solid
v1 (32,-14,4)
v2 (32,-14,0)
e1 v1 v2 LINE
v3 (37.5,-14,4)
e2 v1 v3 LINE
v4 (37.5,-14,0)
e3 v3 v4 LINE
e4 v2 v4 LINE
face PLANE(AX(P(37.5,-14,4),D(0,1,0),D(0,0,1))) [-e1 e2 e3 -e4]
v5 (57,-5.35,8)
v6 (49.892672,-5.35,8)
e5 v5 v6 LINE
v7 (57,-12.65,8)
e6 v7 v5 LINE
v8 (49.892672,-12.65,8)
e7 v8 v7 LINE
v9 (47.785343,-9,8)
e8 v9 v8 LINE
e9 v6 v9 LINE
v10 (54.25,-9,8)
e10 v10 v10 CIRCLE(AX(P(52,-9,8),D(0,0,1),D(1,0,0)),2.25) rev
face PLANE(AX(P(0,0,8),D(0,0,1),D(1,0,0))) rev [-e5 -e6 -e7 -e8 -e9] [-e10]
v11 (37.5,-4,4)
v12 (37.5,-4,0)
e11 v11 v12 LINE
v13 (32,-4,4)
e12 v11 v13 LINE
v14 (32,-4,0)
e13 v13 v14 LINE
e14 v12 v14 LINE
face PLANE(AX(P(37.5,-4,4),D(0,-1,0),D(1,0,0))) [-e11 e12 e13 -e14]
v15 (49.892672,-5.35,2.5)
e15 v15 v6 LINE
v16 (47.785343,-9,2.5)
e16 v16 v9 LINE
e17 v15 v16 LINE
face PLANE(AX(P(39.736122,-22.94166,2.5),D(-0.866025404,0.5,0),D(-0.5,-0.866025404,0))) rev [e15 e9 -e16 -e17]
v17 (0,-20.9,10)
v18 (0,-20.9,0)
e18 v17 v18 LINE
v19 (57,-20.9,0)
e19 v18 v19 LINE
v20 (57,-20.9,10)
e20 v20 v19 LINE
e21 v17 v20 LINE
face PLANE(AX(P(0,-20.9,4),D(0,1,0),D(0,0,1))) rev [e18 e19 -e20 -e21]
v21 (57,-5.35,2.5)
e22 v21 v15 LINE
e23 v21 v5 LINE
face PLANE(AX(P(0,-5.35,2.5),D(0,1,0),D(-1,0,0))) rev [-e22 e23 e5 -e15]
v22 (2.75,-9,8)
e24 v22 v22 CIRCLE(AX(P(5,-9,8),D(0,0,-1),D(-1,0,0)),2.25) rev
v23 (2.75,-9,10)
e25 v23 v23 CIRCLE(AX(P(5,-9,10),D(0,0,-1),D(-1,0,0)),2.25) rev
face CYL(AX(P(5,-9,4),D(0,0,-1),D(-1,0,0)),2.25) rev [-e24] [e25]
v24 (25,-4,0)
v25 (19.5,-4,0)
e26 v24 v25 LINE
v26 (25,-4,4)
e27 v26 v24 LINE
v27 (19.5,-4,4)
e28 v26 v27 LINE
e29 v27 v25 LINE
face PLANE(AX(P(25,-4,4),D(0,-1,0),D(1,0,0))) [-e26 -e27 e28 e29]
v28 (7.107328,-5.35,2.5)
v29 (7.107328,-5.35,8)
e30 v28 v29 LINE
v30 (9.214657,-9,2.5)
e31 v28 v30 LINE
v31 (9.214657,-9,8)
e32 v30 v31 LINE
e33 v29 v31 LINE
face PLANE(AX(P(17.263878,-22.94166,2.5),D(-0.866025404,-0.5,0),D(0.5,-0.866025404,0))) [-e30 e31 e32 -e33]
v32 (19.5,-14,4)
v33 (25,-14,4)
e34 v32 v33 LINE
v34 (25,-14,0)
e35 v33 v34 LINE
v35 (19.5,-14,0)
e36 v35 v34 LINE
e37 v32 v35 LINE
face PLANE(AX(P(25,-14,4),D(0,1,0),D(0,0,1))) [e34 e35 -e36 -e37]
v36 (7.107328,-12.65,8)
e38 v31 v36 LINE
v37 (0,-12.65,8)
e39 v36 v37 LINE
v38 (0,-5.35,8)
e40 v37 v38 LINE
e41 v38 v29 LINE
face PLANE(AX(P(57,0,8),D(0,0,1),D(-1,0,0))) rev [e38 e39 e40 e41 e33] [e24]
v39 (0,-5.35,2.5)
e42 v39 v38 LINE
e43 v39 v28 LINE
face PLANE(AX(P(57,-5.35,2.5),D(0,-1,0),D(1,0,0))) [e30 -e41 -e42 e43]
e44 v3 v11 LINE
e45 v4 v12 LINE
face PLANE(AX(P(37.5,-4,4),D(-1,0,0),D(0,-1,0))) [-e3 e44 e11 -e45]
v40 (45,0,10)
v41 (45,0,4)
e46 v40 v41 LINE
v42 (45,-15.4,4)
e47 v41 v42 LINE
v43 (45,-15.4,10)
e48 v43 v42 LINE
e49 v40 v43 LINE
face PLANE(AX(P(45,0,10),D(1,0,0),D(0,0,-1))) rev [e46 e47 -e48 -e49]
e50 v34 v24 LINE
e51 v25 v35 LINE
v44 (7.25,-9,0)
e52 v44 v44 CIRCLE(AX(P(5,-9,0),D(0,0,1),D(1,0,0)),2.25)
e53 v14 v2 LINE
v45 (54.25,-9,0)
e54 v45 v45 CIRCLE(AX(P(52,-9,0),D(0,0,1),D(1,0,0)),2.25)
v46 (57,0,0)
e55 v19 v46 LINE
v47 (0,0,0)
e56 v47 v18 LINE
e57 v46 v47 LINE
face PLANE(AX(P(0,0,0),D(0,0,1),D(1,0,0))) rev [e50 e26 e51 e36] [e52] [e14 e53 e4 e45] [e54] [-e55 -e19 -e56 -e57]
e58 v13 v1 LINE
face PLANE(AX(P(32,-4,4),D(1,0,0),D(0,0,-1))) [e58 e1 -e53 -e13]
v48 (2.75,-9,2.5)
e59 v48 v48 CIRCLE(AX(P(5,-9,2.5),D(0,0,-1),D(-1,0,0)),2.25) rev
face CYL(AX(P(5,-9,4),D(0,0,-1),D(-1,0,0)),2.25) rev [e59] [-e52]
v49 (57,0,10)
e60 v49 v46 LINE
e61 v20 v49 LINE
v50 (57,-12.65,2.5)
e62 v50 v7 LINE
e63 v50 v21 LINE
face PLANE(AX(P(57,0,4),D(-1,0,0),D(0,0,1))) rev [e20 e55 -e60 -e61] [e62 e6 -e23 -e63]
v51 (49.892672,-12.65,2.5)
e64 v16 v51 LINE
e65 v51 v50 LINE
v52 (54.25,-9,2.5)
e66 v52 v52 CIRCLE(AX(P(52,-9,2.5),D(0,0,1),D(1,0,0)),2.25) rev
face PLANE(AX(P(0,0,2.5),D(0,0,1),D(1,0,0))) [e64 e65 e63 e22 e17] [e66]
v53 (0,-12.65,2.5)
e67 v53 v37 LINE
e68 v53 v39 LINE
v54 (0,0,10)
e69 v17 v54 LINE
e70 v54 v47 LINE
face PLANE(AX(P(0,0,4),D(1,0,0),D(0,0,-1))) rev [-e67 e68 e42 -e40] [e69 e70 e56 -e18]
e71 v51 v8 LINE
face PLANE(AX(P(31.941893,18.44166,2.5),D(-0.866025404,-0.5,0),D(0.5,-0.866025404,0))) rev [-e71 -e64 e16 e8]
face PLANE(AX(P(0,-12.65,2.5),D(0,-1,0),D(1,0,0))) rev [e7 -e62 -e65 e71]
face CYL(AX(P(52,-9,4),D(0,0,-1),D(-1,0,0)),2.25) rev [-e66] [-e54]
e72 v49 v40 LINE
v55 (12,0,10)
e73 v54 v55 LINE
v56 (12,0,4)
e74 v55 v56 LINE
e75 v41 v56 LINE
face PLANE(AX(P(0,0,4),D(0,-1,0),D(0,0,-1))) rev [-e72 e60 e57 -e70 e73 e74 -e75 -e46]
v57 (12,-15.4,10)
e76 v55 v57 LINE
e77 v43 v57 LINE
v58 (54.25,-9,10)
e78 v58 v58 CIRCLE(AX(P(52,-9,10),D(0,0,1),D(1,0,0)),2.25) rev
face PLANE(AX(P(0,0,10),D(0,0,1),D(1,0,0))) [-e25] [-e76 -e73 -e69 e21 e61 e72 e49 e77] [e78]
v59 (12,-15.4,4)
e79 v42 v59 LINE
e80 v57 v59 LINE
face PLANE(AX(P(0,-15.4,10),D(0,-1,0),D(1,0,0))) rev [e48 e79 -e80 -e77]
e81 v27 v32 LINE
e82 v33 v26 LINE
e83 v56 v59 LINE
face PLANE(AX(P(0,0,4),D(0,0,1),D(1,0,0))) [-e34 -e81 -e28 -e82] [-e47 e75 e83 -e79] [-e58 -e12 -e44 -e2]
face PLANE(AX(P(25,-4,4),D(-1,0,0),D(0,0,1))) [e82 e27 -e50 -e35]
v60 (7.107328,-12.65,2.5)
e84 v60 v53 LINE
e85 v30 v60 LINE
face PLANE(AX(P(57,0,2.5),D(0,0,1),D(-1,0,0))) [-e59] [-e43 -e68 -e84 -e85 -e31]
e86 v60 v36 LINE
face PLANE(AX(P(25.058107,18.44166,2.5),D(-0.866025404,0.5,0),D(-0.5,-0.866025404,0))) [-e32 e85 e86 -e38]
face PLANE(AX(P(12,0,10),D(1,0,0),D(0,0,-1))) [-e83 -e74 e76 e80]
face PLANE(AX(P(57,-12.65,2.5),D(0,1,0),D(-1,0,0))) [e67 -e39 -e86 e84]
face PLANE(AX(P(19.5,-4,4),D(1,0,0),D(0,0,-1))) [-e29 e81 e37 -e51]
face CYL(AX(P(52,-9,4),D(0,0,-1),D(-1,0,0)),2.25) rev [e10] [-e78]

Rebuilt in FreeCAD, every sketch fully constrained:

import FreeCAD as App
import Part
import Sketcher
from FreeCAD import Vector
Q = App.Units.Quantity

doc = App.newDocument("Part")
body = doc.addObject("PartDesign::Body", "Body")

sketch1 = body.newObject("Sketcher::SketchObject", "Sketch")
sketch1.AttachmentSupport = (doc.getObject("XY_Plane"), [""])
sketch1.MapMode = "FlatFace"
sketch1.addGeometry([
    Part.LineSegment(Vector(0, 0, 0), Vector(0, -20.9, 0)),
    Part.LineSegment(Vector(0, -20.9, 0), Vector(57, -20.9, 0)),
    Part.LineSegment(Vector(57, -20.9, 0), Vector(57, 0, 0)),
    Part.LineSegment(Vector(57, 0, 0), Vector(0, 0, 0)),
    Part.Circle(Vector(5, -9, 0), Vector(0, 0, 1), 2.2),
    Part.LineSegment(Vector(25, -14, 0), Vector(19.5, -14, 0)),
    Part.LineSegment(Vector(19.5, -14, 0), Vector(19.5, -4, 0)),
    Part.LineSegment(Vector(19.5, -4, 0), Vector(25, -4, 0)),
    Part.LineSegment(Vector(25, -4, 0), Vector(25, -14, 0)),
    Part.LineSegment(Vector(37.5, -14, 0), Vector(32, -14, 0)),
    Part.LineSegment(Vector(32, -14, 0), Vector(32, -4, 0)),
    Part.LineSegment(Vector(32, -4, 0), Vector(37.5, -4, 0)),
    Part.LineSegment(Vector(37.5, -4, 0), Vector(37.5, -14, 0)),
    Part.Circle(Vector(52, -9, 0), Vector(0, 0, 1), 2.2),
], False)
sketch1.addConstraint([
    Sketcher.Constraint("Coincident", 0, 2, 1, 1),
    Sketcher.Constraint("Coincident", 1, 2, 2, 1),
    Sketcher.Constraint("Coincident", 2, 2, 3, 1),
    Sketcher.Constraint("Coincident", 3, 2, 0, 1),
    Sketcher.Constraint("Coincident", 5, 2, 6, 1),
    Sketcher.Constraint("Coincident", 6, 2, 7, 1),
    Sketcher.Constraint("Coincident", 7, 2, 8, 1),
    Sketcher.Constraint("Coincident", 8, 2, 5, 1),
    Sketcher.Constraint("Coincident", 9, 2, 10, 1),
    Sketcher.Constraint("Coincident", 10, 2, 11, 1),
    Sketcher.Constraint("Coincident", 11, 2, 12, 1),
    Sketcher.Constraint("Coincident", 12, 2, 9, 1),
    Sketcher.Constraint("Vertical", 0),
    Sketcher.Constraint("Horizontal", 1),
    Sketcher.Constraint("Vertical", 2),
    Sketcher.Constraint("Horizontal", 3),
    Sketcher.Constraint("Horizontal", 5),
    Sketcher.Constraint("Vertical", 6),
    Sketcher.Constraint("Horizontal", 7),
    Sketcher.Constraint("Vertical", 8),
    Sketcher.Constraint("Horizontal", 9),
    Sketcher.Constraint("Vertical", 10),
    Sketcher.Constraint("Horizontal", 11),
    Sketcher.Constraint("Vertical", 12),
    Sketcher.Constraint("Coincident", 3, 2, -1, 1),
    Sketcher.Constraint("Equal", 4, 13),
    Sketcher.Constraint("Horizontal", 4, 3, 13, 3),
    Sketcher.Constraint("Horizontal", 8, 2, 9, 2),
    Sketcher.Constraint("Horizontal", 7, 2, 10, 2),
    Sketcher.Constraint("Equal", 7, 9),
    Sketcher.Constraint("Diameter", 4, 4.5),
    Sketcher.Constraint("DistanceX", 1, 1, 1, 2, 57.0),
    Sketcher.Constraint("DistanceY", 6, 1, 6, 2, 10.0),
    Sketcher.Constraint("DistanceX", 5, 2, 5, 1, 5.5),
    Sketcher.Constraint("DistanceY", 0, 2, 0, 1, 20.9),
    Sketcher.Constraint("DistanceX", -1, 1, 4, 3, 5.0),
    Sketcher.Constraint("DistanceY", 4, 3, -1, 1, 9.0),
    Sketcher.Constraint("DistanceX", -1, 1, 13, 3, 52.0),
    Sketcher.Constraint("DistanceY", 5, 2, -1, 1, 14.0),
    Sketcher.Constraint("DistanceX", -1, 1, 7, 2, 25.0),
    Sketcher.Constraint("DistanceX", -1, 1, 9, 2, 32.0),
])
pad1 = body.newObject("PartDesign::Pad", "Pad")
pad1.Profile = sketch1
pad1.Length = 4

sketch2 = body.newObject("Sketcher::SketchObject", "Sketch001")
sketch2.AttachmentSupport = (doc.getObject("XY_Plane"), [""])
sketch2.MapMode = "FlatFace"
sketch2.AttachmentOffset = App.Placement(Vector(0, 0, 4), App.Rotation())
sketch2.addGeometry([
    Part.LineSegment(Vector(28.5, -15.4, 0), Vector(28.5, -20.9, 0)),
    Part.LineSegment(Vector(28.5, -20.9, 0), Vector(57, -20.9, 0)),
    Part.LineSegment(Vector(57, -20.9, 0), Vector(57, 0, 0)),
    Part.LineSegment(Vector(57, 0, 0), Vector(45, 0, 0)),
    Part.LineSegment(Vector(45, 0, 0), Vector(45, -15.4, 0)),
    Part.LineSegment(Vector(45, -15.4, 0), Vector(28.5, -15.4, 0)),
    Part.Circle(Vector(52, -9, 0), Vector(0, 0, 1), 2.2),
], False)
sketch2.addConstraint([
    Sketcher.Constraint("Coincident", 0, 2, 1, 1),
    Sketcher.Constraint("Coincident", 1, 2, 2, 1),
    Sketcher.Constraint("Coincident", 2, 2, 3, 1),
    Sketcher.Constraint("Coincident", 3, 2, 4, 1),
    Sketcher.Constraint("Coincident", 4, 2, 5, 1),
    Sketcher.Constraint("Coincident", 5, 2, 0, 1),
    Sketcher.Constraint("Vertical", 0),
    Sketcher.Constraint("Horizontal", 1),
    Sketcher.Constraint("Vertical", 2),
    Sketcher.Constraint("Horizontal", 3),
    Sketcher.Constraint("Vertical", 4),
    Sketcher.Constraint("Horizontal", 5),
    Sketcher.Constraint("PointOnObject", 2, 2, -1),
    Sketcher.Constraint("Diameter", 6, 4.5),
    Sketcher.Constraint("DistanceX", 3, 2, 3, 1, 12.0),
    Sketcher.Constraint("DistanceX", 1, 1, 1, 2, 28.5),
    Sketcher.Constraint("DistanceY", 0, 2, 0, 1, 5.5),
    Sketcher.Constraint("DistanceY", 2, 1, 2, 2, 20.9),
    Sketcher.Constraint("DistanceX", -1, 1, 6, 3, 52.0),
    Sketcher.Constraint("DistanceY", 6, 3, -1, 1, 9.0),
    Sketcher.Constraint("DistanceX", -1, 1, 1, 2, 57.0),
])
pad2 = body.newObject("PartDesign::Pad", "Pad001")
pad2.Profile = sketch2
pad2.Length = 6

sketch3 = body.newObject("Sketcher::SketchObject", "Sketch002")
sketch3.AttachmentSupport = (doc.getObject("XY_Plane"), [""])
sketch3.MapMode = "FlatFace"
sketch3.AttachmentOffset = App.Placement(Vector(0, 0, 2.5), App.Rotation())
sketch3.addGeometry([
    Part.LineSegment(Vector(49.9, -5.3, 0), Vector(47.8, -9, 0)),
    Part.LineSegment(Vector(47.8, -9, 0), Vector(49.9, -12.7, 0)),
    Part.LineSegment(Vector(49.9, -12.7, 0), Vector(57, -12.7, 0)),
    Part.LineSegment(Vector(57, -12.7, 0), Vector(57, -5.3, 0)),
    Part.LineSegment(Vector(57, -5.3, 0), Vector(49.9, -5.3, 0)),
    Part.Circle(Vector(52, -9, 0), Vector(0, 0, 1), 2.2),
], False)
sketch3.addConstraint([
    Sketcher.Constraint("Coincident", 0, 2, 1, 1),
    Sketcher.Constraint("Coincident", 1, 2, 2, 1),
    Sketcher.Constraint("Coincident", 2, 2, 3, 1),
    Sketcher.Constraint("Coincident", 3, 2, 4, 1),
    Sketcher.Constraint("Coincident", 4, 2, 0, 1),
    Sketcher.Constraint("Horizontal", 2),
    Sketcher.Constraint("Vertical", 3),
    Sketcher.Constraint("Horizontal", 4),
    Sketcher.Constraint("Horizontal", 5, 3, 0, 2),
    Sketcher.Constraint("Vertical", 1, 2, 4, 2),
    Sketcher.Constraint("Equal", 0, 1),
    Sketcher.Constraint("Diameter", 5, 4.5),
    Sketcher.Constraint("Angle", 0, Q("-120 deg")),
    Sketcher.Constraint("DistanceY", 3, 1, 3, 2, 7.3),
    Sketcher.Constraint("DistanceX", -1, 1, 5, 3, 52.0),
    Sketcher.Constraint("DistanceY", 5, 3, -1, 1, 9.0),
    Sketcher.Constraint("DistanceX", -1, 1, 2, 2, 57.0),
    Sketcher.Constraint("DistanceX", 2, 1, 2, 2, 7.107328),
])
pocket1 = body.newObject("PartDesign::Pocket", "Pocket")
pocket1.Profile = sketch3
pocket1.Length = 5.5
pocket1.Reversed = True
doc.recompute()

datumplane = body.newObject("PartDesign::Plane", "DatumPlane")
datumplane.AttachmentSupport = (doc.getObject("YZ_Plane"), [""])
datumplane.MapMode = "FlatFace"
datumplane.AttachmentOffset = App.Placement(Vector(0, 0, 28.5), App.Rotation())
mirrored = body.newObject("PartDesign::Mirrored", "Mirrored")
mirrored.Originals = [pad2, pocket1]
mirrored.MirrorPlane = (datumplane, [""])
body.Tip = mirrored

doc.recompute()
